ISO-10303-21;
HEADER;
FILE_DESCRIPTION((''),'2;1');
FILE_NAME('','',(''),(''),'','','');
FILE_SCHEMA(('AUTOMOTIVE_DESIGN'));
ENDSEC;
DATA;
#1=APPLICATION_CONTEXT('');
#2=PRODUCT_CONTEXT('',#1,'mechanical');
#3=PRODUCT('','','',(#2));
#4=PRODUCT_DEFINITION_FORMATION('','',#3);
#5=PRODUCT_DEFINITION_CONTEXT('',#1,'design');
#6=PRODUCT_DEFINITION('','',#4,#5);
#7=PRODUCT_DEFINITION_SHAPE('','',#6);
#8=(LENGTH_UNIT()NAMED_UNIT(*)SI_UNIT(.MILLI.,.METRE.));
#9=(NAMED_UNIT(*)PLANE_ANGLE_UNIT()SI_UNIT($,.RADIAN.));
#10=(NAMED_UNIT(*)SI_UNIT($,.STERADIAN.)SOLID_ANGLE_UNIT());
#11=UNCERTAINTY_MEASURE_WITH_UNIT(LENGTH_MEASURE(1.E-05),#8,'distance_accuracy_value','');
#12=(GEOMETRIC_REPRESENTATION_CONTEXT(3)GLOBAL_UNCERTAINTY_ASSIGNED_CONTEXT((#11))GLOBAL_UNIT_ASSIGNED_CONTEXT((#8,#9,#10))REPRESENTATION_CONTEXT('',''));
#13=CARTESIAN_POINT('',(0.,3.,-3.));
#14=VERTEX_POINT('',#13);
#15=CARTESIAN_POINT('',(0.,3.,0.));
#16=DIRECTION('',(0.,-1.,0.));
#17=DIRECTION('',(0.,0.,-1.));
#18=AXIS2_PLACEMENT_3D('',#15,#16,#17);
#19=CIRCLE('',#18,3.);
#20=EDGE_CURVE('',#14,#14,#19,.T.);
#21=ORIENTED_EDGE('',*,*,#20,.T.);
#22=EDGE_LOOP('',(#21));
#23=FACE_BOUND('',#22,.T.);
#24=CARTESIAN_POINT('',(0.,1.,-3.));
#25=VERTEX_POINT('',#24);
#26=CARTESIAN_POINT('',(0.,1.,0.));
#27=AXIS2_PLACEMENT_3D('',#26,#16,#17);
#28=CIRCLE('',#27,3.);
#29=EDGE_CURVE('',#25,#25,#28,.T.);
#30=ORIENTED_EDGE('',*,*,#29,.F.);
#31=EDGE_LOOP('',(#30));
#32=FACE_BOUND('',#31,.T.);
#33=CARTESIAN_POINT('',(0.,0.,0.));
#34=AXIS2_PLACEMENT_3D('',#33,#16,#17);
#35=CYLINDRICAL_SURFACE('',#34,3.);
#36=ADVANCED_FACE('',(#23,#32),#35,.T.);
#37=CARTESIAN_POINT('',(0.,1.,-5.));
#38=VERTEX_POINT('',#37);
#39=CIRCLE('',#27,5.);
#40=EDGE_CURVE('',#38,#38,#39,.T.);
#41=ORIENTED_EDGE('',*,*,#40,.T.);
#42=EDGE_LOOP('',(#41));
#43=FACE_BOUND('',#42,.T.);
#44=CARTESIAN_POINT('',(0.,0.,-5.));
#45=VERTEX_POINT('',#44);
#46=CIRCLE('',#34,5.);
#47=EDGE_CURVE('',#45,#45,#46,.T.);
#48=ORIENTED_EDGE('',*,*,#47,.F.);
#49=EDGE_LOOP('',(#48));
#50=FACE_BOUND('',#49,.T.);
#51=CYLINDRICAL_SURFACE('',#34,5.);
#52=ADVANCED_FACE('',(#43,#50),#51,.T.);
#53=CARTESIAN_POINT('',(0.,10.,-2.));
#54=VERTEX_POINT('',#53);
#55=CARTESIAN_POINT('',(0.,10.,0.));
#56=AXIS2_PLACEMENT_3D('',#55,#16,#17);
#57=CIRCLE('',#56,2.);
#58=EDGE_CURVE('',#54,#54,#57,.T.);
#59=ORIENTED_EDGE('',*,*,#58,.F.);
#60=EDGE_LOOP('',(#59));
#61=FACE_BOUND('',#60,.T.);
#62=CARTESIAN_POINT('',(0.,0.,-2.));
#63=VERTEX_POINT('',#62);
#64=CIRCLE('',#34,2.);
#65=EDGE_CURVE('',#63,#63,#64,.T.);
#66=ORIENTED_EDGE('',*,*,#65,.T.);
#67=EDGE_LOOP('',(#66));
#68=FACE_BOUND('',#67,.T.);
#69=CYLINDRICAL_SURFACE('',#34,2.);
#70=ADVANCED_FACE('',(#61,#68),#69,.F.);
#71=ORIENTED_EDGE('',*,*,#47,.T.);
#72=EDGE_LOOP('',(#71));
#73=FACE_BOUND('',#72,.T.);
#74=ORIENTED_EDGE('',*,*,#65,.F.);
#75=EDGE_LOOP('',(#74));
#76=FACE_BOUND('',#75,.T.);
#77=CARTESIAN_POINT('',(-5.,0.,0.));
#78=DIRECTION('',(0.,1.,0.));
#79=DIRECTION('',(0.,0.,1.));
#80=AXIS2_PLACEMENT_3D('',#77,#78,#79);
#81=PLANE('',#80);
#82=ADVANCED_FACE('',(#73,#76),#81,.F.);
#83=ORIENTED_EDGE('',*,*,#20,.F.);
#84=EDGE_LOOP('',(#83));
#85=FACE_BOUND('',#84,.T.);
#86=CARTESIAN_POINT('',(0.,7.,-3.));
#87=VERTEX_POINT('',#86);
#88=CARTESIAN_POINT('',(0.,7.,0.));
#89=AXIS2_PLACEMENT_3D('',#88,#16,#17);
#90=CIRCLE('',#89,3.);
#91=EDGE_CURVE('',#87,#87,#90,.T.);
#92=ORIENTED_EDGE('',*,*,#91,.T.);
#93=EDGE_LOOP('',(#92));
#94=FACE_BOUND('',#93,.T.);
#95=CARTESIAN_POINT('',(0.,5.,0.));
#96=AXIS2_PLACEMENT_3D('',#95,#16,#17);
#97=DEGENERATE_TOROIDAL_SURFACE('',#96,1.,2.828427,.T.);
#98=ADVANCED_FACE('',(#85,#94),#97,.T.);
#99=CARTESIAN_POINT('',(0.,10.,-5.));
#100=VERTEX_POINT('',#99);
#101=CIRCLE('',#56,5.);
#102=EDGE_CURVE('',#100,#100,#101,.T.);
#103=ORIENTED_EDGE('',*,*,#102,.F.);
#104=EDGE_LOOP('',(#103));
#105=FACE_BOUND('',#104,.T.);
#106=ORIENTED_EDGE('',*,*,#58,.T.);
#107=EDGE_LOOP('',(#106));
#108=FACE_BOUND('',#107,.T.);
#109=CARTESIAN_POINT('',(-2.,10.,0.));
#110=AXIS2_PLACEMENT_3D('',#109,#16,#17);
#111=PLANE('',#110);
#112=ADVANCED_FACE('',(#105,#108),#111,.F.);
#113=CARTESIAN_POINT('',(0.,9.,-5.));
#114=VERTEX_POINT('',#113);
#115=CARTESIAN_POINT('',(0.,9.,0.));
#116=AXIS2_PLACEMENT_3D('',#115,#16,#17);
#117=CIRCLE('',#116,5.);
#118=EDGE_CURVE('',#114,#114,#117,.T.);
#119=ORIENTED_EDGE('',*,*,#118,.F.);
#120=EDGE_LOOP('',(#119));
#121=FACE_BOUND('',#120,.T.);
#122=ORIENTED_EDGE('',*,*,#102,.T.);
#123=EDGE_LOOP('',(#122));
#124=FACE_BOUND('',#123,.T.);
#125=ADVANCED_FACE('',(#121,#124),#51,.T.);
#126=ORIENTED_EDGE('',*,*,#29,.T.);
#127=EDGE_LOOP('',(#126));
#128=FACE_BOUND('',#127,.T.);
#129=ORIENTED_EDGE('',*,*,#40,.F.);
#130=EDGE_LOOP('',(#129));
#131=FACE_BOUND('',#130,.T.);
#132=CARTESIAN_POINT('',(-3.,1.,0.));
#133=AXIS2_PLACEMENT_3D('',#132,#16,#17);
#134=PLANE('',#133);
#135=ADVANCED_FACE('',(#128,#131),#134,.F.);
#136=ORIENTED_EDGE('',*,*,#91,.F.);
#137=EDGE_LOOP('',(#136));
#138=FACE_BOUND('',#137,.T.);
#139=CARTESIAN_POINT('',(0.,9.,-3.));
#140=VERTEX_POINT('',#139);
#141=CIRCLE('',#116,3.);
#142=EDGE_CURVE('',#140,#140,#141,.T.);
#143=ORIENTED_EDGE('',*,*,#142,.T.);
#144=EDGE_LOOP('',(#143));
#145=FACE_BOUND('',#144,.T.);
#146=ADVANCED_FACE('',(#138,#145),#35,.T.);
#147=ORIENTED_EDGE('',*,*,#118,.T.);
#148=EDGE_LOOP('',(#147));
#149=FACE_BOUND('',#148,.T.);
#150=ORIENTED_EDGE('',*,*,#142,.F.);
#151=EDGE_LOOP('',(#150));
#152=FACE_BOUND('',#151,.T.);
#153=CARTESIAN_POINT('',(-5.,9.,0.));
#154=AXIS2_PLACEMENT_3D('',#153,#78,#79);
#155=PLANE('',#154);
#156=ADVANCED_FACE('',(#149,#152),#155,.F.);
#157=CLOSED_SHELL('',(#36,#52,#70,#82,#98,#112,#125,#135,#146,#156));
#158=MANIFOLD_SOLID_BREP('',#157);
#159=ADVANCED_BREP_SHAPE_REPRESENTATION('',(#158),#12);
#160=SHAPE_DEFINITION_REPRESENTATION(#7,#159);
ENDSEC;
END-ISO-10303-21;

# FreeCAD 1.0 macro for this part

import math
import FreeCAD as App
import Part
import Sketcher

V = App.Vector
Q = App.Units.Quantity

doc = App.newDocument("Part")
body = doc.addObject("PartDesign::Body", "Body")

sketch1 = body.newObject("Sketcher::SketchObject", "Sketch")
sketch1.AttachmentSupport = (doc.getObject("XY_Plane"), [""])
sketch1.MapMode = "FlatFace"
sketch1.addGeometry([
    Part.LineSegment(V(-2, 10, 0), V(-5, 10, 0)),
    Part.LineSegment(V(-5, 10, 0), V(-5, 9, 0)),
    Part.LineSegment(V(-5, 9, 0), V(-3, 9, 0)),
    Part.LineSegment(V(-3, 9, 0), V(-3, 7, 0)),
    Part.ArcOfCircle(Part.Circle(V(-1, 5, 0), V(0, 0, 1), 2.8), math.radians(135), math.radians(225)),
    Part.LineSegment(V(-3, 3, 0), V(-3, 1, 0)),
    Part.LineSegment(V(-3, 1, 0), V(-5, 1, 0)),
    Part.LineSegment(V(-5, 1, 0), V(-5, 0, 0)),
    Part.LineSegment(V(-5, 0, 0), V(-2, 0, 0)),
    Part.LineSegment(V(-2, 0, 0), V(-2, 10, 0)),
], False)
sketch1.addConstraint([
    Sketcher.Constraint("Coincident", 0, 2, 1, 1),
    Sketcher.Constraint("Coincident", 1, 2, 2, 1),
    Sketcher.Constraint("Coincident", 2, 2, 3, 1),
    Sketcher.Constraint("Coincident", 3, 2, 4, 1),
    Sketcher.Constraint("Coincident", 4, 2, 5, 1),
    Sketcher.Constraint("Coincident", 5, 2, 6, 1),
    Sketcher.Constraint("Coincident", 6, 2, 7, 1),
    Sketcher.Constraint("Coincident", 7, 2, 8, 1),
    Sketcher.Constraint("Coincident", 8, 2, 9, 1),
    Sketcher.Constraint("Coincident", 9, 2, 0, 1),
    Sketcher.Constraint("Horizontal", 0),
    Sketcher.Constraint("Vertical", 1),
    Sketcher.Constraint("Horizontal", 2),
    Sketcher.Constraint("Vertical", 3),
    Sketcher.Constraint("Vertical", 5),
    Sketcher.Constraint("Horizontal", 6),
    Sketcher.Constraint("Vertical", 7),
    Sketcher.Constraint("Horizontal", 8),
    Sketcher.Constraint("Vertical", 9),
    Sketcher.Constraint("PointOnObject", 7, 2, -1),
    Sketcher.Constraint("Vertical", 3, 2, 4, 2),
    Sketcher.Constraint("Vertical", 1, 2, 6, 2),
    Sketcher.Constraint("Equal", 6, 3),
    Sketcher.Constraint("Equal", 3, 5),
    Sketcher.Constraint("Equal", 1, 7),
    Sketcher.Constraint("DistanceX", 0, 2, 0, 1, Q("3 mm")),
    Sketcher.Constraint("DistanceX", 2, 1, 2, 2, Q("2 mm")),
    Sketcher.Constraint("DistanceY", 1, 2, 1, 1, Q("1 mm")),
    Sketcher.Constraint("DistanceY", 9, 1, 9, 2, Q("10 mm")),
    Sketcher.Constraint("DistanceX", 4, 3, -1, 1, Q("1 mm")),
    Sketcher.Constraint("DistanceX", 0, 2, -1, 1, Q("5 mm")),
])
revolution = body.newObject("PartDesign::Revolution", "Revolution")
revolution.Profile = sketch1
revolution.ReferenceAxis = (sketch1, ["V_Axis"])
revolution.Angle = 360

doc.recompute()
